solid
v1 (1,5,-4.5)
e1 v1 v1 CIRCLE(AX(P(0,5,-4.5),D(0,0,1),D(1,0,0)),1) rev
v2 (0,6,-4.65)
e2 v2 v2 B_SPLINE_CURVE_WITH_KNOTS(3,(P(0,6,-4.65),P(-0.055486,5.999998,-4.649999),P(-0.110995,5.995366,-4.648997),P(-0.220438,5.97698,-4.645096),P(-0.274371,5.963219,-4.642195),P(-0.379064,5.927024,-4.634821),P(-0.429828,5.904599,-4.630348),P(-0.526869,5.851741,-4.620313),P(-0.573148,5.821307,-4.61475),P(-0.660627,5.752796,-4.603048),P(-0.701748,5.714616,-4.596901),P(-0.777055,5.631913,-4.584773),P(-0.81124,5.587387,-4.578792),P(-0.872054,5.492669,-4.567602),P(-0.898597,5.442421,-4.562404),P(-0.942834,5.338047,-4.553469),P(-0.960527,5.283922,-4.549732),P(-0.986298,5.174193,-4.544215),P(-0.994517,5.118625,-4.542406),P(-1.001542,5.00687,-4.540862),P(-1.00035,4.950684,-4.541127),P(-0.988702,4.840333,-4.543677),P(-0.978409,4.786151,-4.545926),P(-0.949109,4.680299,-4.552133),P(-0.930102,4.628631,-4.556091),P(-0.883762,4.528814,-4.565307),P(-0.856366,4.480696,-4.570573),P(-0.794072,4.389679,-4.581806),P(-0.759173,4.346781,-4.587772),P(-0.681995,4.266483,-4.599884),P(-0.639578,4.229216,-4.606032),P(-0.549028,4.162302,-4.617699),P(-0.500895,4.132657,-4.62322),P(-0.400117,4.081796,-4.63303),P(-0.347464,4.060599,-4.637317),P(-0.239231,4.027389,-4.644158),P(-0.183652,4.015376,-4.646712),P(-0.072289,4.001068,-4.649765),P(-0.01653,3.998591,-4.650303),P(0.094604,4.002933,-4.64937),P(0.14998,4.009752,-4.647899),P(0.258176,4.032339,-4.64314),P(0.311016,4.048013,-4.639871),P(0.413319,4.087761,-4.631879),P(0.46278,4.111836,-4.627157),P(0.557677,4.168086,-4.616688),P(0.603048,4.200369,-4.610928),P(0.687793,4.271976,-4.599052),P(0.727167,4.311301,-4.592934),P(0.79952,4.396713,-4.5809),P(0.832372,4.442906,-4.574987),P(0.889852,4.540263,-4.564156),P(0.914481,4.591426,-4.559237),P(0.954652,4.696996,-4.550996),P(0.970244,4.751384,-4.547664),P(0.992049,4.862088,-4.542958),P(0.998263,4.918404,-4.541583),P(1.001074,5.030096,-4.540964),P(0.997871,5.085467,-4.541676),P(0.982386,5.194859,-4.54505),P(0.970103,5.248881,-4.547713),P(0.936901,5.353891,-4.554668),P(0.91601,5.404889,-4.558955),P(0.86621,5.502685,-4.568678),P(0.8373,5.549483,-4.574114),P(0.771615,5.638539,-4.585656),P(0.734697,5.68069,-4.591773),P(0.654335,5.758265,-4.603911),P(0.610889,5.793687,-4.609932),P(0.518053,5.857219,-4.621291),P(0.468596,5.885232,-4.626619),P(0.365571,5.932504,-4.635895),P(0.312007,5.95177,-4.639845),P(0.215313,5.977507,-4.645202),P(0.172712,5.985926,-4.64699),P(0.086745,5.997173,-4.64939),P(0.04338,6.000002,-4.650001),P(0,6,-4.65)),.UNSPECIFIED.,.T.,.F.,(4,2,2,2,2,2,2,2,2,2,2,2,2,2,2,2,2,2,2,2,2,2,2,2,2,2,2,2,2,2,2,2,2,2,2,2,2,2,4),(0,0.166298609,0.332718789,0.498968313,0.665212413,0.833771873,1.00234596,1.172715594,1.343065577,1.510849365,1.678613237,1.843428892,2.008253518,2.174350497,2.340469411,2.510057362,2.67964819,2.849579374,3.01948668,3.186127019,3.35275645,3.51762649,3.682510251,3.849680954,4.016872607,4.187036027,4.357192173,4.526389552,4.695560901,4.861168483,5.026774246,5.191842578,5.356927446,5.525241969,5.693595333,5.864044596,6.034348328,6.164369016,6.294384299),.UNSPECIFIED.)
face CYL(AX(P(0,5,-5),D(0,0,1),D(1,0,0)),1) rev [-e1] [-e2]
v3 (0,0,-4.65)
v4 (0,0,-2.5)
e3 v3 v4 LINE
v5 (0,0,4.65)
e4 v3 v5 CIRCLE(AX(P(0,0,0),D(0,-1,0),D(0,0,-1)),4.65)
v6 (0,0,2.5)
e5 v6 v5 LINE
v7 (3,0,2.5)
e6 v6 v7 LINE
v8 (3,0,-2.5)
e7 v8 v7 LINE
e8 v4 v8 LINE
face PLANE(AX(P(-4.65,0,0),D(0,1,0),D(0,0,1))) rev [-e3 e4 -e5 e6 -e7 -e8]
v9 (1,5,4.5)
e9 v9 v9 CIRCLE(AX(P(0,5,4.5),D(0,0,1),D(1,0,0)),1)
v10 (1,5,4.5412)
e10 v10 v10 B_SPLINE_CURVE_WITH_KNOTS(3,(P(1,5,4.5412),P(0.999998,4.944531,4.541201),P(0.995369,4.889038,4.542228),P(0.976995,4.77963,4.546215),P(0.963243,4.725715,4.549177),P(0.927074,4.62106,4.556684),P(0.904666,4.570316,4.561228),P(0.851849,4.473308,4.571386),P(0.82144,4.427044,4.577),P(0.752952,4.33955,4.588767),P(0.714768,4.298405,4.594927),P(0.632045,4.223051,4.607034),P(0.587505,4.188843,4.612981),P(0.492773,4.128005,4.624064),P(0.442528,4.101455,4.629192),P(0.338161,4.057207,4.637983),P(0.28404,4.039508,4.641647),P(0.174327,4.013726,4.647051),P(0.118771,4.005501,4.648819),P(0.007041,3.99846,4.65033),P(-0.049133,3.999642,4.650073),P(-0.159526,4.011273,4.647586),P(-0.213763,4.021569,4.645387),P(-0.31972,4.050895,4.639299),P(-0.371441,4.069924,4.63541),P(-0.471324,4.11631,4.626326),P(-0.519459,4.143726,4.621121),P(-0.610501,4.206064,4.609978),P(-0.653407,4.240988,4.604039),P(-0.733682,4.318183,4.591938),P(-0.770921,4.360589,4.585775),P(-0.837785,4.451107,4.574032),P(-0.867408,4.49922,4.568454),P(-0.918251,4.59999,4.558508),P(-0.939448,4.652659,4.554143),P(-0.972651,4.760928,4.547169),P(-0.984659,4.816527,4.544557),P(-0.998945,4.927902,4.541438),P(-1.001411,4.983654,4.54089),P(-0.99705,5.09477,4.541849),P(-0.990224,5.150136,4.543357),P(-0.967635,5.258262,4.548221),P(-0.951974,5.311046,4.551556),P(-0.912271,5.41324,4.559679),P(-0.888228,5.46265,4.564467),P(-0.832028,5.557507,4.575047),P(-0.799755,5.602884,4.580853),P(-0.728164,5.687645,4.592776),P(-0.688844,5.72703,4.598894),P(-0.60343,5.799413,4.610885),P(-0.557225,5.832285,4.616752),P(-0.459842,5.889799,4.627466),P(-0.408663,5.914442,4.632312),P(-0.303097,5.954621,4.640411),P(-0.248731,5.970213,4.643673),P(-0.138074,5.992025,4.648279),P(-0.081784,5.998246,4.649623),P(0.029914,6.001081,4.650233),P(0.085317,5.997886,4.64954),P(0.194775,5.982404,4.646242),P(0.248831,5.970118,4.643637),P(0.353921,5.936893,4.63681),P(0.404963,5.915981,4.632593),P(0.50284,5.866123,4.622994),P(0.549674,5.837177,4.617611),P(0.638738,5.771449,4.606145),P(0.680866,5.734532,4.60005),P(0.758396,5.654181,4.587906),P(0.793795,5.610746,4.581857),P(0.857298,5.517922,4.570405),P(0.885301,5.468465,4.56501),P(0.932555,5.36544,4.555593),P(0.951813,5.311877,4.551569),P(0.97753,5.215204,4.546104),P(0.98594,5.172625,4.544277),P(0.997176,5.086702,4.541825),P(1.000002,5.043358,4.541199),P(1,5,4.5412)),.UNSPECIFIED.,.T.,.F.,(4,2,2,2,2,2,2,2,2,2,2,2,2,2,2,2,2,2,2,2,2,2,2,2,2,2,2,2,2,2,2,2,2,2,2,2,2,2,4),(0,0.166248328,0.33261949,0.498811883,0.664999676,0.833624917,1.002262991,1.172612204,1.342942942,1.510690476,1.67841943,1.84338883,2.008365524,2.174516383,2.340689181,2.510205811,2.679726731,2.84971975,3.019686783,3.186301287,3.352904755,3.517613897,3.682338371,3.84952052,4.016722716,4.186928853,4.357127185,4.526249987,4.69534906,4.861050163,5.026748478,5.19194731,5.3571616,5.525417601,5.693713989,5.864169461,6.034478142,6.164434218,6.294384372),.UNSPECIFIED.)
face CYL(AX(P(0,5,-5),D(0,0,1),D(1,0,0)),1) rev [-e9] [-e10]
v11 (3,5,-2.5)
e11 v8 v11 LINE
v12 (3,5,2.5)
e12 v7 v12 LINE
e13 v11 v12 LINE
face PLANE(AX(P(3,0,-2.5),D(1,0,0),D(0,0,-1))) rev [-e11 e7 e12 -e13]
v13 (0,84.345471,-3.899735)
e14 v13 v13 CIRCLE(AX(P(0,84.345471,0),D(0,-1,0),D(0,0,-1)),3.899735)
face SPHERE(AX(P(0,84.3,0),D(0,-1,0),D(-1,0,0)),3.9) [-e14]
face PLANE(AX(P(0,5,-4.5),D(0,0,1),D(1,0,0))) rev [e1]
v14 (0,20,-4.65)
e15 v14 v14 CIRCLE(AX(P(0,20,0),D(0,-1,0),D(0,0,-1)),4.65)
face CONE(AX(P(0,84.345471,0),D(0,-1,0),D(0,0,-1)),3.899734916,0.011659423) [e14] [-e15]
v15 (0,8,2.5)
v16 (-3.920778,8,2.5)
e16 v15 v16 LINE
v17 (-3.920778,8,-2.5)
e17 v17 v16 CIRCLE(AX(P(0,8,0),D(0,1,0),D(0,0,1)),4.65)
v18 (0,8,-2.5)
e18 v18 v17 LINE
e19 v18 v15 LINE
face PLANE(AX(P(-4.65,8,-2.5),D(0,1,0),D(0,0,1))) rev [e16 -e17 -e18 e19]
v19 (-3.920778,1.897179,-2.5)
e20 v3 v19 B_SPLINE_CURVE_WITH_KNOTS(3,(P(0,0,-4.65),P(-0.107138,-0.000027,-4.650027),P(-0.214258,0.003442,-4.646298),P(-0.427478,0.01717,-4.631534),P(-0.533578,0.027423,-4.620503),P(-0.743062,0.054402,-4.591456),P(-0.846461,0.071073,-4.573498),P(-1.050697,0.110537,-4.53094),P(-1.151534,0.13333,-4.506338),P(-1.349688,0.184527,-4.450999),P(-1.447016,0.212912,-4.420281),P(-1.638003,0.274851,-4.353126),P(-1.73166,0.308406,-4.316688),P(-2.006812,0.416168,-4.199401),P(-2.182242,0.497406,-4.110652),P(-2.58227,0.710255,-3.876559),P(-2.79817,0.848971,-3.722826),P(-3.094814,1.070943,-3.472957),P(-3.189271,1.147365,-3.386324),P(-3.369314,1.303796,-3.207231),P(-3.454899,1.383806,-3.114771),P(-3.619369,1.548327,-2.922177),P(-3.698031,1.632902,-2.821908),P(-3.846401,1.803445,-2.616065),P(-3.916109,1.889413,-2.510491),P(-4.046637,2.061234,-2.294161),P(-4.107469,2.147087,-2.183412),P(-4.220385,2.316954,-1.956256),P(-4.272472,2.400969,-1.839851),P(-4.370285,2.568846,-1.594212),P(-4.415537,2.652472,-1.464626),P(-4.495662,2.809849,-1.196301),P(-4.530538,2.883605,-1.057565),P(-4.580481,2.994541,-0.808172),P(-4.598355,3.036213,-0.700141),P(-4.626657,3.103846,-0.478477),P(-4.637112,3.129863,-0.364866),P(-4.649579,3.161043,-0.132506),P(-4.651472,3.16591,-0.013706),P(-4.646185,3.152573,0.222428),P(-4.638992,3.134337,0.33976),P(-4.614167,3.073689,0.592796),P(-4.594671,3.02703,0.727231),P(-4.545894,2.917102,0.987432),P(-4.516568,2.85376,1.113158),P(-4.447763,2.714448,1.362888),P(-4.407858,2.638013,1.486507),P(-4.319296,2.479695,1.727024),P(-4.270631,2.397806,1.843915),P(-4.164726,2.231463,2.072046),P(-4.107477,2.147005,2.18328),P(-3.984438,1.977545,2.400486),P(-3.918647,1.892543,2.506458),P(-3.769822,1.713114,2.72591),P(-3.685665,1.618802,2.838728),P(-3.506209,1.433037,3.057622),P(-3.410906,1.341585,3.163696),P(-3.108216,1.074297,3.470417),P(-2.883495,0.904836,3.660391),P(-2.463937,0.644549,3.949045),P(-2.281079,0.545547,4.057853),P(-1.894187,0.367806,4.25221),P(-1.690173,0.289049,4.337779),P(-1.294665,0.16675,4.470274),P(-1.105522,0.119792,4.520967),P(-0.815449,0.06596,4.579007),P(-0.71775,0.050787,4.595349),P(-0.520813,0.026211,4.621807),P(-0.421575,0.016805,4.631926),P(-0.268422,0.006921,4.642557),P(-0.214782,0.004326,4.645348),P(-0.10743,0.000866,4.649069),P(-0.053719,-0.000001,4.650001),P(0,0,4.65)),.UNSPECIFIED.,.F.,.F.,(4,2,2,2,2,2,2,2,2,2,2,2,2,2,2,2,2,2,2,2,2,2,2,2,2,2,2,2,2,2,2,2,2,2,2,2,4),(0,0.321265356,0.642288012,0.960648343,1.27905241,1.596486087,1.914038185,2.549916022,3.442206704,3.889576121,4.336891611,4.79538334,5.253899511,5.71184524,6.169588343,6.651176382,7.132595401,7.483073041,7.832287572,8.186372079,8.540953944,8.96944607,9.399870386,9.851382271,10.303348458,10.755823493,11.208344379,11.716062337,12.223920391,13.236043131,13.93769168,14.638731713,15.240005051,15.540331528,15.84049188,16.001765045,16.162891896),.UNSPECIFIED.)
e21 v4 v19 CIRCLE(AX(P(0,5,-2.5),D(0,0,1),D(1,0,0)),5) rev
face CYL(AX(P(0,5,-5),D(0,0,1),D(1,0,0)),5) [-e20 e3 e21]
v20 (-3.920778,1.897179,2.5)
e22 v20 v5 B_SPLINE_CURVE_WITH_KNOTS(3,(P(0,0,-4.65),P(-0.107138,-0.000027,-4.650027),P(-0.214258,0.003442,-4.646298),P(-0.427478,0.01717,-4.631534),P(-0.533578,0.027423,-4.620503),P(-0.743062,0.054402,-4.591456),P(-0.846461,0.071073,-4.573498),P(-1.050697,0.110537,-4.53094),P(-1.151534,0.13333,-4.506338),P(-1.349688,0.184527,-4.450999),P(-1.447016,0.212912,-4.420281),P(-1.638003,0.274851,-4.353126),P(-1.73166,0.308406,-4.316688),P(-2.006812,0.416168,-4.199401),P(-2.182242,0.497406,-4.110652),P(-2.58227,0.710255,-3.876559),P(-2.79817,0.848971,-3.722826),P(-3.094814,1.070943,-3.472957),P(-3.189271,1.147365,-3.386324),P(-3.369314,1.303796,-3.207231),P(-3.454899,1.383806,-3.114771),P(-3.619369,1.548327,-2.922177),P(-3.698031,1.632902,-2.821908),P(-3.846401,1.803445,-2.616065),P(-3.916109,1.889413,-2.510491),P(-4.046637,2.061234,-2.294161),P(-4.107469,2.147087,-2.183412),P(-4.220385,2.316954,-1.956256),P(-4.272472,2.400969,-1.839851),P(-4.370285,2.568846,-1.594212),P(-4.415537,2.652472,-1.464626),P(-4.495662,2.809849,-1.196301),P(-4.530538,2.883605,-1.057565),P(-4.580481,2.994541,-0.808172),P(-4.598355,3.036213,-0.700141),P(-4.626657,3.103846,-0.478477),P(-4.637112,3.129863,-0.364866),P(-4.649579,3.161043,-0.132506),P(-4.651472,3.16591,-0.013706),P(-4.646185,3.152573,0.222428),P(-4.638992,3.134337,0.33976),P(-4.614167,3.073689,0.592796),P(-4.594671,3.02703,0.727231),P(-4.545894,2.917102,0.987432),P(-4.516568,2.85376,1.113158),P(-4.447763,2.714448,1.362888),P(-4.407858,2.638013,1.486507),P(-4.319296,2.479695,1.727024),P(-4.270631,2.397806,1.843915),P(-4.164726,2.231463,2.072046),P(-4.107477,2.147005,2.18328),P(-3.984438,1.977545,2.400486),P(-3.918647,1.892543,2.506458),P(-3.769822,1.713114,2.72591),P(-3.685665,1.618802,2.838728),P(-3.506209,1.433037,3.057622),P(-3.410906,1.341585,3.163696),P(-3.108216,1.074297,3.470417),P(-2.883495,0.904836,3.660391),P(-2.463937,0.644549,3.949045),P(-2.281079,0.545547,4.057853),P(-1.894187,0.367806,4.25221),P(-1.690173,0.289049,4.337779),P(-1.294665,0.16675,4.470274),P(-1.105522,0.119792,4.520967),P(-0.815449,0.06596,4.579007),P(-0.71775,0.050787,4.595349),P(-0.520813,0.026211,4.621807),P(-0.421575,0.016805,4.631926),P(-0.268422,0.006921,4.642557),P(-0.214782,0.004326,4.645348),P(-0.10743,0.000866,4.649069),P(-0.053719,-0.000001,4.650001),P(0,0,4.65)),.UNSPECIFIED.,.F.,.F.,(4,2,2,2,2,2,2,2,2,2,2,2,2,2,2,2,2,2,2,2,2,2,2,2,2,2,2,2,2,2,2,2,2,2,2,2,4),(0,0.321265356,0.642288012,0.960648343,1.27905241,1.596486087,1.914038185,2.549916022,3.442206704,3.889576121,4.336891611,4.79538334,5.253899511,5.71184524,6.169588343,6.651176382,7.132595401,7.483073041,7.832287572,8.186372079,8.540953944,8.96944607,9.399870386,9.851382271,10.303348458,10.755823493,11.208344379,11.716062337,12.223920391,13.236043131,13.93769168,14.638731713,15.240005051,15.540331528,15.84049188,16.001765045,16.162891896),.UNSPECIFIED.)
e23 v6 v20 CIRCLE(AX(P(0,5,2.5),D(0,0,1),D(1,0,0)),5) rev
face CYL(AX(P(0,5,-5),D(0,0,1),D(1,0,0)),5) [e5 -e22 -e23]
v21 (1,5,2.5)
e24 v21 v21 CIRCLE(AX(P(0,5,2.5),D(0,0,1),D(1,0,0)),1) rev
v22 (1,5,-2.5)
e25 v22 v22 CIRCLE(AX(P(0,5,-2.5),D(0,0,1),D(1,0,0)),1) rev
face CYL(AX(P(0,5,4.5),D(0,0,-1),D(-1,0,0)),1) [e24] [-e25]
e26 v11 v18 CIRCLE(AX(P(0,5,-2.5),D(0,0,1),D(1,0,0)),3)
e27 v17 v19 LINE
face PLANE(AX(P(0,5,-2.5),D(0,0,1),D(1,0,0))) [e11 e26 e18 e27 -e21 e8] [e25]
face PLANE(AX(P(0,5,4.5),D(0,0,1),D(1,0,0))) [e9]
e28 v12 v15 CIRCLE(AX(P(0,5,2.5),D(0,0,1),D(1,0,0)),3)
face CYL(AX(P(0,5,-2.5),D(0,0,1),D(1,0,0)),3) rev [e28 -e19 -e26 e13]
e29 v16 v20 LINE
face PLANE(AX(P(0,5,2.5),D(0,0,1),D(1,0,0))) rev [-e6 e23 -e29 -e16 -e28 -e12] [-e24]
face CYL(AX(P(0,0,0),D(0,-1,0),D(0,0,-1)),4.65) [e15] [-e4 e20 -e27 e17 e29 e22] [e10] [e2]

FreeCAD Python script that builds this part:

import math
import FreeCAD as App
import Part
import Sketcher

doc = App.newDocument("Part")
body = doc.addObject("PartDesign::Body", "Body")

# Sketch on XY plane
sketch1 = doc.addObject("Sketcher::SketchObject", "Sketch")
body.addObject(sketch1)
sketch1.AttachmentSupport = (doc.XY_Plane, [""])
sketch1.MapMode = "FlatFace"
sketch1.addGeometry(Part.LineSegment(App.Vector(0, 0, 0), App.Vector(0, 88.2, 0)), False)
sketch1.addGeometry(Part.ArcOfCircle(Part.Circle(App.Vector(0, 84.3, 0), App.Vector(0, 0, 1), 3.9), math.radians(90), math.radians(179.331964)), False)
sketch1.addGeometry(Part.LineSegment(App.Vector(-3.899735, 84.345471, 0), App.Vector(-4.65, 20, 0)), False)
sketch1.addGeometry(Part.LineSegment(App.Vector(-4.65, 20, 0), App.Vector(-4.65, 0, 0)), False)
sketch1.addGeometry(Part.LineSegment(App.Vector(-4.65, 0, 0), App.Vector(0, 0, 0)), False)
sketch1.addConstraint(Sketcher.Constraint("Coincident", 0, 2, 1, 1))
sketch1.addConstraint(Sketcher.Constraint("Tangent", 1, 2, 2, 1))
sketch1.addConstraint(Sketcher.Constraint("Coincident", 2, 2, 3, 1))
sketch1.addConstraint(Sketcher.Constraint("Coincident", 3, 2, 4, 1))
sketch1.addConstraint(Sketcher.Constraint("Coincident", 4, 2, 0, 1))
sketch1.addConstraint(Sketcher.Constraint("Vertical", 0))
sketch1.addConstraint(Sketcher.Constraint("Vertical", 3))
sketch1.addConstraint(Sketcher.Constraint("Horizontal", 4))
sketch1.addConstraint(Sketcher.Constraint("Coincident", 4, 2, -1, 1))
sketch1.addConstraint(Sketcher.Constraint("PointOnObject", 1, 3, -2))
sketch1.addConstraint(Sketcher.Constraint("Radius", 1, 3.9))
sketch1.addConstraint(Sketcher.Constraint("DistanceY", 3, 2, 3, 1, 20.0))
sketch1.addConstraint(Sketcher.Constraint("DistanceY", 0, 1, 0, 2, 88.2))
sketch1.addConstraint(Sketcher.Constraint("DistanceX", 4, 1, 4, 2, 4.65))
revolution = doc.addObject("PartDesign::Revolution", "Revolution")
body.addObject(revolution)
revolution.Profile = sketch1
revolution.ReferenceAxis = (sketch1, ["V_Axis"])
revolution.Angle = 360

# Sketch on XY plane
sketch2 = doc.addObject("Sketcher::SketchObject", "Sketch001")
body.addObject(sketch2)
sketch2.AttachmentSupport = (doc.XY_Plane, [""])
sketch2.MapMode = "FlatFace"
sketch2.addGeometry(Part.Circle(App.Vector(0, 5, 0), App.Vector(0, 0, 1), 1), False)
sketch2.addConstraint(Sketcher.Constraint("PointOnObject", 0, 3, -2))
sketch2.addConstraint(Sketcher.Constraint("Diameter", 0, 2.0))
sketch2.addConstraint(Sketcher.Constraint("DistanceY", -1, 1, 0, 3, 5.0))
pocket1 = doc.addObject("PartDesign::Pocket", "Pocket")
body.addObject(pocket1)
pocket1.Profile = sketch2
pocket1.Length = 10
pocket1.Midplane = True

# Sketch on XY plane
sketch3 = doc.addObject("Sketcher::SketchObject", "Sketch002")
body.addObject(sketch3)
sketch3.AttachmentSupport = (doc.XY_Plane, [""])
sketch3.MapMode = "FlatFace"
sketch3.addGeometry(Part.LineSegment(App.Vector(3, 0, 0), App.Vector(3, 5, 0)), False)
sketch3.addGeometry(Part.ArcOfCircle(Part.Circle(App.Vector(0, 5, 0), App.Vector(0, 0, 1), 3), math.radians(0), math.radians(90)), False)
sketch3.addGeometry(Part.LineSegment(App.Vector(0, 8, 0), App.Vector(-4.65, 8, 0)), False)
sketch3.addGeometry(Part.LineSegment(App.Vector(-4.65, 8, 0), App.Vector(-4.65, 0, 0)), False)
sketch3.addGeometry(Part.LineSegment(App.Vector(-4.65, 0, 0), App.Vector(3, 0, 0)), False)
sketch3.addConstraint(Sketcher.Constraint("Tangent", 0, 2, 1, 1))
sketch3.addConstraint(Sketcher.Constraint("Tangent", 1, 2, 2, 1))
sketch3.addConstraint(Sketcher.Constraint("Coincident", 2, 2, 3, 1))
sketch3.addConstraint(Sketcher.Constraint("Coincident", 3, 2, 4, 1))
sketch3.addConstraint(Sketcher.Constraint("Coincident", 4, 2, 0, 1))
sketch3.addConstraint(Sketcher.Constraint("Vertical", 0))
sketch3.addConstraint(Sketcher.Constraint("Horizontal", 2))
sketch3.addConstraint(Sketcher.Constraint("Vertical", 3))
sketch3.addConstraint(Sketcher.Constraint("Horizontal", 4))
sketch3.addConstraint(Sketcher.Constraint("PointOnObject", 1, 3, -2))
sketch3.addConstraint(Sketcher.Constraint("PointOnObject", 3, 2, -1))
sketch3.addConstraint(Sketcher.Constraint("Radius", 1, 3.0))
sketch3.addConstraint(Sketcher.Constraint("DistanceY", 0, 1, 0, 2, 5.0))
sketch3.addConstraint(Sketcher.Constraint("DistanceX", 2, 2, 2, 1, 4.65))
pocket2 = doc.addObject("PartDesign::Pocket", "Pocket001")
body.addObject(pocket2)
pocket2.Profile = sketch3
pocket2.Length = 5
pocket2.Midplane = True

# Sketch on XY plane
sketch4 = doc.addObject("Sketcher::SketchObject", "Sketch003")
body.addObject(sketch4)
sketch4.AttachmentSupport = (doc.XY_Plane, [""])
sketch4.MapMode = "FlatFace"
sketch4.addGeometry(Part.LineSegment(App.Vector(-5, 5, 0), App.Vector(-8, 5, 0)), False)
sketch4.addGeometry(Part.LineSegment(App.Vector(-8, 5, 0), App.Vector(-8, -3, 0)), False)
sketch4.addGeometry(Part.LineSegment(App.Vector(-8, -3, 0), App.Vector(0, -3, 0)), False)
sketch4.addGeometry(Part.LineSegment(App.Vector(0, -3, 0), App.Vector(0, 0, 0)), False)
sketch4.addGeometry(Part.ArcOfCircle(Part.Circle(App.Vector(0, 5, 0), App.Vector(0, 0, 1), 5), math.radians(180), math.radians(270)), False)
sketch4.addConstraint(Sketcher.Constraint("Coincident", 0, 2, 1, 1))
sketch4.addConstraint(Sketcher.Constraint("Coincident", 1, 2, 2, 1))
sketch4.addConstraint(Sketcher.Constraint("Coincident", 2, 2, 3, 1))
sketch4.addConstraint(Sketcher.Constraint("Coincident", 3, 2, 4, 2))
sketch4.addConstraint(Sketcher.Constraint("Coincident", 4, 1, 0, 1))
sketch4.addConstraint(Sketcher.Constraint("Horizontal", 0))
sketch4.addConstraint(Sketcher.Constraint("Vertical", 1))
sketch4.addConstraint(Sketcher.Constraint("Horizontal", 2))
sketch4.addConstraint(Sketcher.Constraint("Vertical", 3))
sketch4.addConstraint(Sketcher.Constraint("Coincident", 3, 2, -1, 1))
sketch4.addConstraint(Sketcher.Constraint("PointOnObject", 4, 3, -2))
sketch4.addConstraint(Sketcher.Constraint("Horizontal", 4, 3, 0, 2))
sketch4.addConstraint(Sketcher.Constraint("Equal", 2, 1))
sketch4.addConstraint(Sketcher.Constraint("Radius", 4, 5.0))
sketch4.addConstraint(Sketcher.Constraint("DistanceX", 0, 2, 0, 1, 3.0))
pocket3 = doc.addObject("PartDesign::Pocket", "Pocket002")
body.addObject(pocket3)
pocket3.Profile = sketch4
pocket3.Length = 10
pocket3.Midplane = True

# Sketch on XY plane
sketch5 = doc.addObject("Sketcher::SketchObject", "Sketch004")
body.addObject(sketch5)
sketch5.AttachmentSupport = (doc.XY_Plane, [""])
sketch5.MapMode = "FlatFace"
sketch5.addGeometry(Part.Circle(App.Vector(0, 5, 0), App.Vector(0, 0, 1), 1), False)
sketch5.addConstraint(Sketcher.Constraint("PointOnObject", 0, 3, -2))
sketch5.addConstraint(Sketcher.Constraint("Diameter", 0, 2.0))
sketch5.addConstraint(Sketcher.Constraint("DistanceY", -1, 1, 0, 3, 5.0))
pad1 = doc.addObject("PartDesign::Pad", "Pad")
body.addObject(pad1)
pad1.Profile = sketch5
pad1.Length = 9
pad1.Midplane = True

doc.recompute()
